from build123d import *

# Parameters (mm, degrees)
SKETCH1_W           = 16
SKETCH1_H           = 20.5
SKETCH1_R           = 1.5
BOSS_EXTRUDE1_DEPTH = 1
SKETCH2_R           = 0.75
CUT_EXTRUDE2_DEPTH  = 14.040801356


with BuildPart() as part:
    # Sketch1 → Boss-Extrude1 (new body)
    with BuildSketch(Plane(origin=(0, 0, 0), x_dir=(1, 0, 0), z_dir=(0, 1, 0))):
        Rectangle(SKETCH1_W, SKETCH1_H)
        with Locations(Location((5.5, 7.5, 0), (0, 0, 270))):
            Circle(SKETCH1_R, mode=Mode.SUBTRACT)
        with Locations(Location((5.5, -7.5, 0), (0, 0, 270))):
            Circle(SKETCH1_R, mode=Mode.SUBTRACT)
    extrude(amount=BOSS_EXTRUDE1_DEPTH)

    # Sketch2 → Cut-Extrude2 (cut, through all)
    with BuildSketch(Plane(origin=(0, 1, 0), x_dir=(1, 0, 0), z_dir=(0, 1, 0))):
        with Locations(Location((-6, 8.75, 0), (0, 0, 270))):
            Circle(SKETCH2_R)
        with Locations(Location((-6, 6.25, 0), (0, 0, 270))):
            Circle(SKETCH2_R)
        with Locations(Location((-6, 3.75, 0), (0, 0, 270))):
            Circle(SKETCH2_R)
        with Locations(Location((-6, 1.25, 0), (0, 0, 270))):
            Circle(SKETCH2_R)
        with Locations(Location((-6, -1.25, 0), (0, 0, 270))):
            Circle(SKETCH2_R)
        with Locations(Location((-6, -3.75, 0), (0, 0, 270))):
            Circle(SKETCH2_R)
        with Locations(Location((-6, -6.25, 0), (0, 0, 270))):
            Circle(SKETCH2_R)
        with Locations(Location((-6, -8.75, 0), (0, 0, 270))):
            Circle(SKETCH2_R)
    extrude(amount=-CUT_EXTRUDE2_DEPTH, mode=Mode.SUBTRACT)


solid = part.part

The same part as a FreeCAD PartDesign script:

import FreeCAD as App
import Part
import Sketcher


def add_polygon(sketch, points):
    """Adds a closed chain of lines whose ends are joined by coincident constraints."""
    first, n = sketch.GeometryCount, len(points)
    for a, b in zip(points, points[1:] + points[:1]):
        sketch.addGeometry(Part.LineSegment(App.Vector(*a, 0), App.Vector(*b, 0)), False)
    for i in range(n):
        sketch.addConstraint(Sketcher.Constraint("Coincident", first + i, 2, first + (i + 1) % n, 1))

doc = App.newDocument("Part")
body = doc.addObject("PartDesign::Body", "Body")

sketch1 = body.newObject("Sketcher::SketchObject", "Sketch")
sketch1.AttachmentSupport = (doc.getObject("XZ_Plane"), [""])
sketch1.MapMode = "FlatFace"
add_polygon(sketch1, [(-8, -10.2), (-8, 10.2), (8, 10.2), (8, -10.2)])
sketch1.addGeometry(Part.Circle(App.Vector(5.5, 7.5, 0), App.Vector(0, 0, 1), 1.5), False)
sketch1.addGeometry(Part.Circle(App.Vector(5.5, -7.5, 0), App.Vector(0, 0, 1), 1.5), False)
sketch1.addConstraint([
    Sketcher.Constraint("Vertical", 0),
    Sketcher.Constraint("Horizontal", 1),
    Sketcher.Constraint("Vertical", 2),
    Sketcher.Constraint("Horizontal", 3),
    Sketcher.Constraint("Equal", 4, 5),
    Sketcher.Constraint("Symmetric", 0, 2, 2, 2, -1, 1),
    Sketcher.Constraint("Symmetric", 4, 3, 5, 3, -1),
    Sketcher.Constraint("Diameter", 4, 3.0),
    Sketcher.Constraint("DistanceX", 1, 1, 1, 2, 16.0),
    Sketcher.Constraint("DistanceY", 0, 1, 0, 2, 20.5),
    Sketcher.Constraint("DistanceY", 5, 3, 4, 3, 15.0),
    Sketcher.Constraint("DistanceX", -1, 1, 4, 3, 5.5),
])
pad1 = body.newObject("PartDesign::Pad", "Pad")
pad1.Profile = sketch1
pad1.Length = 1
pad1.Reversed = True

sketch2 = body.newObject("Sketcher::SketchObject", "Sketch001")
sketch2.AttachmentSupport = (doc.getObject("XZ_Plane"), [""])
sketch2.MapMode = "FlatFace"
sketch2.AttachmentOffset = App.Placement(App.Vector(0, 0, -1), App.Rotation())
sketch2.addGeometry([
    Part.Circle(App.Vector(-6, -8.8, 0), App.Vector(0, 0, 1), 0.8),
    Part.Circle(App.Vector(-6, -6.2, 0), App.Vector(0, 0, 1), 0.8),
    Part.Circle(App.Vector(-6, -3.8, 0), App.Vector(0, 0, 1), 0.8),
    Part.Circle(App.Vector(-6, -1.2, 0), App.Vector(0, 0, 1), 0.8),
    Part.Circle(App.Vector(-6, 1.2, 0), App.Vector(0, 0, 1), 0.8),
    Part.Circle(App.Vector(-6, 3.8, 0), App.Vector(0, 0, 1), 0.8),
    Part.Circle(App.Vector(-6, 6.2, 0), App.Vector(0, 0, 1), 0.8),
    Part.Circle(App.Vector(-6, 8.8, 0), App.Vector(0, 0, 1), 0.8),
], False)
sketch2.addConstraint([
    Sketcher.Constraint("Equal", 0, 1),
    Sketcher.Constraint("Equal", 1, 2),
    Sketcher.Constraint("Equal", 2, 3),
    Sketcher.Constraint("Equal", 3, 4),
    Sketcher.Constraint("Equal", 4, 5),
    Sketcher.Constraint("Equal", 5, 6),
    Sketcher.Constraint("Equal", 6, 7),
    Sketcher.Constraint("Symmetric", 3, 3, 4, 3, -1),
    Sketcher.Constraint("Symmetric", 2, 3, 5, 3, -1),
    Sketcher.Constraint("Symmetric", 1, 3, 6, 3, -1),
    Sketcher.Constraint("Symmetric", 0, 3, 7, 3, -1),
    Sketcher.Constraint("Vertical", 0, 3, 1, 3),
    Sketcher.Constraint("Vertical", 1, 3, 2, 3),
    Sketcher.Constraint("Vertical", 2, 3, 3, 3),
    Sketcher.Constraint("Diameter", 0, 1.5),
    Sketcher.Constraint("DistanceX", 0, 3, -1, 1, 6.0),
    Sketcher.Constraint("DistanceY", 0, 3, 2, 3, 5.0),
    Sketcher.Constraint("DistanceY", 1, 3, 3, 3, 5.0),
    Sketcher.Constraint("DistanceY", 2, 3, 4, 3, 5.0),
    Sketcher.Constraint("DistanceY", 0, 3, 1, 3, 2.5),
])
pocket1 = body.newObject("PartDesign::Pocket", "Pocket")
pocket1.Profile = sketch2
pocket1.Type = "ThroughAll"
pocket1.Reversed = True

doc.recompute()
